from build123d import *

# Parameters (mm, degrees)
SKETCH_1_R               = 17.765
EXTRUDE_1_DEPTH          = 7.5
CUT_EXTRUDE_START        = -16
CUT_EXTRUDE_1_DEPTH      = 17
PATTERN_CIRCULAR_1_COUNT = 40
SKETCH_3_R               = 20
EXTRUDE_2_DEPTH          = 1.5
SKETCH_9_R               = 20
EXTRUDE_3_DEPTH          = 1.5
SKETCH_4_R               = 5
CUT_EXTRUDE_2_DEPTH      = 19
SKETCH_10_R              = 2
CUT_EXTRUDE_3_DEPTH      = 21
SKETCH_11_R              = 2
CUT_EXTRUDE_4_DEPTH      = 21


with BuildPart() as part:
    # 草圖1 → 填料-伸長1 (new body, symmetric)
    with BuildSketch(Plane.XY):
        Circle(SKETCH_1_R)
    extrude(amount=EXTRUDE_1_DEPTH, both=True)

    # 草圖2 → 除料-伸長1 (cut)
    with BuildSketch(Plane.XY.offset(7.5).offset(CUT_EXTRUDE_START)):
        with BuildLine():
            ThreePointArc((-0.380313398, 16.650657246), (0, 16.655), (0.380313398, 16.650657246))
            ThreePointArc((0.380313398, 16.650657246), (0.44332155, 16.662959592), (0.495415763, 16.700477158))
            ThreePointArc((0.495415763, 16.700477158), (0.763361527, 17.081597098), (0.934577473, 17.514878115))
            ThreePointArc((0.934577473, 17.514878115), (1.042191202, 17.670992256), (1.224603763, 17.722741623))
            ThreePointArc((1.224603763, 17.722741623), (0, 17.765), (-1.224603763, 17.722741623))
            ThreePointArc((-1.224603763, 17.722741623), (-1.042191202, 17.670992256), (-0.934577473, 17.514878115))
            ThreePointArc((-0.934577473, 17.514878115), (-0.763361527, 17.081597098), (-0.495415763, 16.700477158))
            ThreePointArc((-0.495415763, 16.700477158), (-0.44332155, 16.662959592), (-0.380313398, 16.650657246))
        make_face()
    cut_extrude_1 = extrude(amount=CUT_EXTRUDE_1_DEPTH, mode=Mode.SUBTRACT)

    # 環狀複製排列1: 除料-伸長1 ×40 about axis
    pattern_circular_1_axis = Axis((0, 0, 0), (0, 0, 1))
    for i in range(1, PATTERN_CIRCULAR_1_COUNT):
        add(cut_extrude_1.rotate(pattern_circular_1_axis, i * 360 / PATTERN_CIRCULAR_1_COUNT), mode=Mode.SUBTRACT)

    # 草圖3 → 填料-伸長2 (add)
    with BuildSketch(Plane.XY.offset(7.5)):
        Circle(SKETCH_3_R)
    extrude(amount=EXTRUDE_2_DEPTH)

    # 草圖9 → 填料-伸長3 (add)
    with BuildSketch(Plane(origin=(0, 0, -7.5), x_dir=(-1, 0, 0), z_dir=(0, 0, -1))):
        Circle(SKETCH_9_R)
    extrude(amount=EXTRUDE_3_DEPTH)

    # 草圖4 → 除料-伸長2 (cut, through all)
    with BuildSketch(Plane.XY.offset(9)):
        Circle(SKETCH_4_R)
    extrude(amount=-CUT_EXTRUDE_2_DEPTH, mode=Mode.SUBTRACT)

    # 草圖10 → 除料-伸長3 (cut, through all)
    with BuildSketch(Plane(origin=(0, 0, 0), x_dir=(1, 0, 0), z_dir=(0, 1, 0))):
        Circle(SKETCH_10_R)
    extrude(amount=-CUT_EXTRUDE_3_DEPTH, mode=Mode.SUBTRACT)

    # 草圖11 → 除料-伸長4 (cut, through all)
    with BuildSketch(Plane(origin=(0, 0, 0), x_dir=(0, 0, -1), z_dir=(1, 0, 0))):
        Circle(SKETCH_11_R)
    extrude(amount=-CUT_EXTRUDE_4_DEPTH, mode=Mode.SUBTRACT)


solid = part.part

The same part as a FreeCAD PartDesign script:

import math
import FreeCAD as App
import Part
import Sketcher

doc = App.newDocument("Part")
body = doc.addObject("PartDesign::Body", "Body")

# Sketch on XY plane
sketch1 = body.newObject("Sketcher::SketchObject", "Sketch")
sketch1.AttachmentSupport = (doc.getObject("XY_Plane"), [""])
sketch1.MapMode = "FlatFace"
sketch1.addGeometry(Part.Circle(App.Vector(0, 0, 0), App.Vector(0, 0, 1), 17.765), False)
sketch1.addConstraint([
    Sketcher.Constraint("Coincident", 0, 3, -1, 1),
    Sketcher.Constraint("Diameter", 0, 35.53),
])
pad1 = body.newObject("PartDesign::Pad", "Pad")
pad1.Profile = sketch1
pad1.Length = 15
pad1.Midplane = True

# Sketch on XY plane
sketch2 = body.newObject("Sketcher::SketchObject", "Sketch001")
sketch2.AttachmentSupport = (doc.getObject("XY_Plane"), [""])
sketch2.MapMode = "FlatFace"
sketch2.AttachmentOffset = App.Placement(App.Vector(0, 0, -8.5), App.Rotation())
sketch2.addGeometry([
    Part.ArcOfCircle(Part.Circle(App.Vector(0, -0.000001, 0), App.Vector(0, 0, 1), 16.655001), math.radians(88.691549), math.radians(91.308451)),  # 0
    Part.ArcOfCircle(Part.Circle(App.Vector(0.383739, 16.800618, 0), App.Vector(0, 0, 1), 0.15), math.radians(-91.308451), math.radians(-41.882601)),  # 1
    Part.ArcOfCircle(Part.Circle(App.Vector(-0.975, 18.019, 0), App.Vector(0, 0, 1), 1.975), math.radians(-41.882601), math.radians(-14.788493)),  # 2
    Part.ArcOfCircle(Part.Circle(App.Vector(1.205302, 17.443408, 0), App.Vector(0, 0, 1), 0.28), math.radians(86.047266), math.radians(165.211507)),  # 3
    Part.ArcOfCircle(Part.Circle(App.Vector(0, 0, 0), App.Vector(0, 0, 1), 17.765), math.radians(86.047266), math.radians(93.952734)),  # 4
    Part.ArcOfCircle(Part.Circle(App.Vector(-1.205302, 17.443408, 0), App.Vector(0, 0, 1), 0.28), math.radians(14.788493), math.radians(93.952734)),  # 5
    Part.ArcOfCircle(Part.Circle(App.Vector(0.975, 18.019, 0), App.Vector(0, 0, 1), 1.975), math.radians(-165.211507), math.radians(-138.117399)),  # 6
    Part.ArcOfCircle(Part.Circle(App.Vector(-0.383739, 16.800618, 0), App.Vector(0, 0, 1), 0.15), math.radians(-138.117399), math.radians(-88.691549)),  # 7
], False)
sketch2.addConstraint([
    Sketcher.Constraint("Tangent", 0, 1, 1, 1),
    Sketcher.Constraint("Tangent", 1, 2, 2, 1),
    Sketcher.Constraint("Tangent", 2, 2, 3, 2),
    Sketcher.Constraint("Tangent", 3, 1, 4, 1),
    Sketcher.Constraint("Tangent", 4, 2, 5, 2),
    Sketcher.Constraint("Tangent", 5, 1, 6, 1),
    Sketcher.Constraint("Tangent", 6, 2, 7, 1),
    Sketcher.Constraint("Tangent", 7, 2, 0, 2),
    Sketcher.Constraint("Coincident", 0, 3, -1, 1),
    Sketcher.Constraint("Coincident", 4, 3, -1, 1),
    Sketcher.Constraint("Equal", 3, 5),
    Sketcher.Constraint("Equal", 2, 6),
    Sketcher.Constraint("Equal", 1, 7),
    Sketcher.Constraint("Symmetric", 2, 3, 6, 3, -2),
    Sketcher.Constraint("Radius", 1, 0.15),
    Sketcher.Constraint("Radius", 3, 0.28),
    Sketcher.Constraint("Radius", 0, 16.655001),
    Sketcher.Constraint("Radius", 2, 1.975),
    Sketcher.Constraint("Radius", 4, 17.765),
    Sketcher.Constraint("DistanceX", 2, 3, 6, 3, 1.95),
    Sketcher.Constraint("DistanceY", -1, 1, 2, 3, 18.019),
])
pocket1 = body.newObject("PartDesign::Pocket", "Pocket")
pocket1.Profile = sketch2
pocket1.Length = 17
pocket1.Reversed = True
doc.recompute()

polarpattern = body.newObject("PartDesign::PolarPattern", "PolarPattern")
polarpattern.Originals = [pocket1]
polarpattern.Axis = (doc.getObject("Z_Axis"), [""])
polarpattern.Angle = 360
polarpattern.Occurrences = 40
body.Tip = polarpattern

# Sketch on XY plane
sketch3 = body.newObject("Sketcher::SketchObject", "Sketch002")
sketch3.AttachmentSupport = (doc.getObject("XY_Plane"), [""])
sketch3.MapMode = "FlatFace"
sketch3.AttachmentOffset = App.Placement(App.Vector(0, 0, 7.5), App.Rotation())
sketch3.addGeometry(Part.Circle(App.Vector(0, 0, 0), App.Vector(0, 0, 1), 20), False)
sketch3.addConstraint([
    Sketcher.Constraint("Coincident", 0, 3, -1, 1),
    Sketcher.Constraint("Diameter", 0, 40.0),
])
pad2 = body.newObject("PartDesign::Pad", "Pad001")
pad2.Profile = sketch3
pad2.Length = 1.5

# Sketch on XY plane
sketch4 = body.newObject("Sketcher::SketchObject", "Sketch003")
sketch4.AttachmentSupport = (doc.getObject("XY_Plane"), [""])
sketch4.MapMode = "FlatFace"
sketch4.AttachmentOffset = App.Placement(App.Vector(0, 0, -7.5), App.Rotation())
sketch4.addGeometry(Part.Circle(App.Vector(0, 0, 0), App.Vector(0, 0, 1), 20), False)
sketch4.addConstraint([
    Sketcher.Constraint("Coincident", 0, 3, -1, 1),
    Sketcher.Constraint("Diameter", 0, 40.0),
])
pad3 = body.newObject("PartDesign::Pad", "Pad002")
pad3.Profile = sketch4
pad3.Length = 1.5
pad3.Reversed = True

# Sketch on XY plane
sketch5 = body.newObject("Sketcher::SketchObject", "Sketch004")
sketch5.AttachmentSupport = (doc.getObject("XY_Plane"), [""])
sketch5.MapMode = "FlatFace"
sketch5.AttachmentOffset = App.Placement(App.Vector(0, 0, 9), App.Rotation())
sketch5.addGeometry(Part.Circle(App.Vector(0, 0, 0), App.Vector(0, 0, 1), 5), False)
sketch5.addConstraint([
    Sketcher.Constraint("Coincident", 0, 3, -1, 1),
    Sketcher.Constraint("Diameter", 0, 10.0),
])
pocket2 = body.newObject("PartDesign::Pocket", "Pocket001")
pocket2.Profile = sketch5
pocket2.Type = "ThroughAll"

# Sketch on XZ plane
sketch6 = body.newObject("Sketcher::SketchObject", "Sketch005")
sketch6.AttachmentSupport = (doc.getObject("XZ_Plane"), [""])
sketch6.MapMode = "FlatFace"
sketch6.addGeometry(Part.Circle(App.Vector(0, 0, 0), App.Vector(0, 0, 1), 2), False)
sketch6.addConstraint([
    Sketcher.Constraint("Coincident", 0, 3, -1, 1),
    Sketcher.Constraint("Diameter", 0, 4.0),
])
pocket3 = body.newObject("PartDesign::Pocket", "Pocket002")
pocket3.Profile = sketch6
pocket3.Type = "ThroughAll"
pocket3.Reversed = True

# Sketch on YZ plane
sketch7 = body.newObject("Sketcher::SketchObject", "Sketch006")
sketch7.AttachmentSupport = (doc.getObject("YZ_Plane"), [""])
sketch7.MapMode = "FlatFace"
sketch7.addGeometry(Part.Circle(App.Vector(0, 0, 0), App.Vector(0, 0, 1), 2), False)
sketch7.addConstraint([
    Sketcher.Constraint("Coincident", 0, 3, -1, 1),
    Sketcher.Constraint("Diameter", 0, 4.0),
])
pocket4 = body.newObject("PartDesign::Pocket", "Pocket003")
pocket4.Profile = sketch7
pocket4.Type = "ThroughAll"

doc.recompute()
